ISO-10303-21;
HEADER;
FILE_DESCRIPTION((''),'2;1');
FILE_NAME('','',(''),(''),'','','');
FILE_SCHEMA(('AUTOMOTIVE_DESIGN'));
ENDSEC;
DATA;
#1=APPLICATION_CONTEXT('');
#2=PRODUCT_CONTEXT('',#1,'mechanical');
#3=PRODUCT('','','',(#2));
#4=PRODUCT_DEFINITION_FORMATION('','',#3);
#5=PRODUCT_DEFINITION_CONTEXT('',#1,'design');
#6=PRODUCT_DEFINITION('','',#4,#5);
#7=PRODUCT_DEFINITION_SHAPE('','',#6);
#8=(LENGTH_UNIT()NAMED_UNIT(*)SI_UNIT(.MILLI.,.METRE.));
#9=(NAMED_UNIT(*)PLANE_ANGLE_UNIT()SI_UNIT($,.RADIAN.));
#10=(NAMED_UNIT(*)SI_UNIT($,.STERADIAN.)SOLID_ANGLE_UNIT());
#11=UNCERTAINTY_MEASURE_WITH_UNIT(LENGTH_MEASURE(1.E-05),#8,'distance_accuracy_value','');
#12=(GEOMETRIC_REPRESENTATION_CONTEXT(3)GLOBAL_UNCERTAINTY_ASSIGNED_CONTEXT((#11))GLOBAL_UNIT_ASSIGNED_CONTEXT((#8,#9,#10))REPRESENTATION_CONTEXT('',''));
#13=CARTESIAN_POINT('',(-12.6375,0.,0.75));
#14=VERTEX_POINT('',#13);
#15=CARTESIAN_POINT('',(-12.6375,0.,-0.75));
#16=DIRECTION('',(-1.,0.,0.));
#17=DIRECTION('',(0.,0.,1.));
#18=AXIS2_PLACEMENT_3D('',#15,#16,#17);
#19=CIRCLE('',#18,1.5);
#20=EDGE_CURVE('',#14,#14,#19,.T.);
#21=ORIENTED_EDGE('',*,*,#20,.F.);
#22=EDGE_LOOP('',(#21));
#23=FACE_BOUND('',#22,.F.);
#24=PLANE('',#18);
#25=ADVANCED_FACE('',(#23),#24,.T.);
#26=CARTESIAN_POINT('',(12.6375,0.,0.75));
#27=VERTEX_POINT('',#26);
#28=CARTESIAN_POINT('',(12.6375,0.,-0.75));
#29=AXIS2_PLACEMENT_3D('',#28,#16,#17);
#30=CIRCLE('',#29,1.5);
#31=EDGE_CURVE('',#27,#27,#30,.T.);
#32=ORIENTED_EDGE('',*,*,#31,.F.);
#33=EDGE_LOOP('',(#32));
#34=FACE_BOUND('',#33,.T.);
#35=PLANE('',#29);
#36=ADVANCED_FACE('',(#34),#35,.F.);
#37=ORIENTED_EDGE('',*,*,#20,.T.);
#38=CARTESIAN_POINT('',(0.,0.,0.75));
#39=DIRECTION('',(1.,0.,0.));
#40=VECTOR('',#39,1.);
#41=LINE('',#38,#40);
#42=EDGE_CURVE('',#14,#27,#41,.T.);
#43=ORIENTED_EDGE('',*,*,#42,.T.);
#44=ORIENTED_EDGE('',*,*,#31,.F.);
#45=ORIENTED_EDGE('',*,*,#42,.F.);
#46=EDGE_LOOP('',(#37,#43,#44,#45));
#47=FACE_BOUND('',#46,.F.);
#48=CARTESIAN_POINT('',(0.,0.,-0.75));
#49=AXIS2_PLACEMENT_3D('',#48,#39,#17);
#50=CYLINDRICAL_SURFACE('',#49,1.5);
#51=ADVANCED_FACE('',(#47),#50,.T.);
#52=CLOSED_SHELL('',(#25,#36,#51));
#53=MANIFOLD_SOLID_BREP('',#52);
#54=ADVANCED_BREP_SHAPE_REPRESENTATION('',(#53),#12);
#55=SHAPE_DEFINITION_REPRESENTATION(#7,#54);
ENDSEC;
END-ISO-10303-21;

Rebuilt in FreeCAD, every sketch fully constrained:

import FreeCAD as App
import Part
import Sketcher

V = App.Vector


def add_polygon(sketch, points):
    """Adds a closed chain of lines whose ends are joined by coincident constraints."""
    first, n = sketch.GeometryCount, len(points)
    for a, b in zip(points, points[1:] + points[:1]):
        sketch.addGeometry(Part.LineSegment(App.Vector(*a, 0), App.Vector(*b, 0)), False)
    for i in range(n):
        sketch.addConstraint(Sketcher.Constraint("Coincident", first + i, 2, first + (i + 1) % n, 1))

doc = App.newDocument("Part")
body = doc.addObject("PartDesign::Body", "Body")

sketch1 = doc.addObject("Sketcher::SketchObject", "Sketch")
body.addObject(sketch1)
sketch1.AttachmentSupport = (doc.XZ_Plane, [""])
sketch1.MapMode = "FlatFace"
add_polygon(sketch1, [(-12.6, 0.8), (-12.6, -0.8), (12.6, -0.8), (12.6, 0.8)])
sketch1.addGeometry(Part.LineSegment(V(12.6, -0.8, 0), V(-12.6, -0.8, 0)), True)
sketch1.addConstraint([
    Sketcher.Constraint("Vertical", 0),
    Sketcher.Constraint("Horizontal", 1),
    Sketcher.Constraint("Vertical", 2),
    Sketcher.Constraint("Horizontal", 3),
    Sketcher.Constraint("Horizontal", 4),
    Sketcher.Constraint("Coincident", 4, 1, 1, 2),
    Sketcher.Constraint("Symmetric", 0, 2, 2, 2, -1, 1),
    Sketcher.Constraint("Vertical", 3, 2, 4, 2),
    Sketcher.Constraint("DistanceY", 0, 2, 0, 1, 1.5),
    Sketcher.Constraint("DistanceX", 1, 1, 1, 2, 25.275),
])
revolution = doc.addObject("PartDesign::Revolution", "Revolution")
body.addObject(revolution)
revolution.Profile = sketch1
revolution.ReferenceAxis = (sketch1, ["Axis0"])
revolution.Angle = 360

doc.recompute()
